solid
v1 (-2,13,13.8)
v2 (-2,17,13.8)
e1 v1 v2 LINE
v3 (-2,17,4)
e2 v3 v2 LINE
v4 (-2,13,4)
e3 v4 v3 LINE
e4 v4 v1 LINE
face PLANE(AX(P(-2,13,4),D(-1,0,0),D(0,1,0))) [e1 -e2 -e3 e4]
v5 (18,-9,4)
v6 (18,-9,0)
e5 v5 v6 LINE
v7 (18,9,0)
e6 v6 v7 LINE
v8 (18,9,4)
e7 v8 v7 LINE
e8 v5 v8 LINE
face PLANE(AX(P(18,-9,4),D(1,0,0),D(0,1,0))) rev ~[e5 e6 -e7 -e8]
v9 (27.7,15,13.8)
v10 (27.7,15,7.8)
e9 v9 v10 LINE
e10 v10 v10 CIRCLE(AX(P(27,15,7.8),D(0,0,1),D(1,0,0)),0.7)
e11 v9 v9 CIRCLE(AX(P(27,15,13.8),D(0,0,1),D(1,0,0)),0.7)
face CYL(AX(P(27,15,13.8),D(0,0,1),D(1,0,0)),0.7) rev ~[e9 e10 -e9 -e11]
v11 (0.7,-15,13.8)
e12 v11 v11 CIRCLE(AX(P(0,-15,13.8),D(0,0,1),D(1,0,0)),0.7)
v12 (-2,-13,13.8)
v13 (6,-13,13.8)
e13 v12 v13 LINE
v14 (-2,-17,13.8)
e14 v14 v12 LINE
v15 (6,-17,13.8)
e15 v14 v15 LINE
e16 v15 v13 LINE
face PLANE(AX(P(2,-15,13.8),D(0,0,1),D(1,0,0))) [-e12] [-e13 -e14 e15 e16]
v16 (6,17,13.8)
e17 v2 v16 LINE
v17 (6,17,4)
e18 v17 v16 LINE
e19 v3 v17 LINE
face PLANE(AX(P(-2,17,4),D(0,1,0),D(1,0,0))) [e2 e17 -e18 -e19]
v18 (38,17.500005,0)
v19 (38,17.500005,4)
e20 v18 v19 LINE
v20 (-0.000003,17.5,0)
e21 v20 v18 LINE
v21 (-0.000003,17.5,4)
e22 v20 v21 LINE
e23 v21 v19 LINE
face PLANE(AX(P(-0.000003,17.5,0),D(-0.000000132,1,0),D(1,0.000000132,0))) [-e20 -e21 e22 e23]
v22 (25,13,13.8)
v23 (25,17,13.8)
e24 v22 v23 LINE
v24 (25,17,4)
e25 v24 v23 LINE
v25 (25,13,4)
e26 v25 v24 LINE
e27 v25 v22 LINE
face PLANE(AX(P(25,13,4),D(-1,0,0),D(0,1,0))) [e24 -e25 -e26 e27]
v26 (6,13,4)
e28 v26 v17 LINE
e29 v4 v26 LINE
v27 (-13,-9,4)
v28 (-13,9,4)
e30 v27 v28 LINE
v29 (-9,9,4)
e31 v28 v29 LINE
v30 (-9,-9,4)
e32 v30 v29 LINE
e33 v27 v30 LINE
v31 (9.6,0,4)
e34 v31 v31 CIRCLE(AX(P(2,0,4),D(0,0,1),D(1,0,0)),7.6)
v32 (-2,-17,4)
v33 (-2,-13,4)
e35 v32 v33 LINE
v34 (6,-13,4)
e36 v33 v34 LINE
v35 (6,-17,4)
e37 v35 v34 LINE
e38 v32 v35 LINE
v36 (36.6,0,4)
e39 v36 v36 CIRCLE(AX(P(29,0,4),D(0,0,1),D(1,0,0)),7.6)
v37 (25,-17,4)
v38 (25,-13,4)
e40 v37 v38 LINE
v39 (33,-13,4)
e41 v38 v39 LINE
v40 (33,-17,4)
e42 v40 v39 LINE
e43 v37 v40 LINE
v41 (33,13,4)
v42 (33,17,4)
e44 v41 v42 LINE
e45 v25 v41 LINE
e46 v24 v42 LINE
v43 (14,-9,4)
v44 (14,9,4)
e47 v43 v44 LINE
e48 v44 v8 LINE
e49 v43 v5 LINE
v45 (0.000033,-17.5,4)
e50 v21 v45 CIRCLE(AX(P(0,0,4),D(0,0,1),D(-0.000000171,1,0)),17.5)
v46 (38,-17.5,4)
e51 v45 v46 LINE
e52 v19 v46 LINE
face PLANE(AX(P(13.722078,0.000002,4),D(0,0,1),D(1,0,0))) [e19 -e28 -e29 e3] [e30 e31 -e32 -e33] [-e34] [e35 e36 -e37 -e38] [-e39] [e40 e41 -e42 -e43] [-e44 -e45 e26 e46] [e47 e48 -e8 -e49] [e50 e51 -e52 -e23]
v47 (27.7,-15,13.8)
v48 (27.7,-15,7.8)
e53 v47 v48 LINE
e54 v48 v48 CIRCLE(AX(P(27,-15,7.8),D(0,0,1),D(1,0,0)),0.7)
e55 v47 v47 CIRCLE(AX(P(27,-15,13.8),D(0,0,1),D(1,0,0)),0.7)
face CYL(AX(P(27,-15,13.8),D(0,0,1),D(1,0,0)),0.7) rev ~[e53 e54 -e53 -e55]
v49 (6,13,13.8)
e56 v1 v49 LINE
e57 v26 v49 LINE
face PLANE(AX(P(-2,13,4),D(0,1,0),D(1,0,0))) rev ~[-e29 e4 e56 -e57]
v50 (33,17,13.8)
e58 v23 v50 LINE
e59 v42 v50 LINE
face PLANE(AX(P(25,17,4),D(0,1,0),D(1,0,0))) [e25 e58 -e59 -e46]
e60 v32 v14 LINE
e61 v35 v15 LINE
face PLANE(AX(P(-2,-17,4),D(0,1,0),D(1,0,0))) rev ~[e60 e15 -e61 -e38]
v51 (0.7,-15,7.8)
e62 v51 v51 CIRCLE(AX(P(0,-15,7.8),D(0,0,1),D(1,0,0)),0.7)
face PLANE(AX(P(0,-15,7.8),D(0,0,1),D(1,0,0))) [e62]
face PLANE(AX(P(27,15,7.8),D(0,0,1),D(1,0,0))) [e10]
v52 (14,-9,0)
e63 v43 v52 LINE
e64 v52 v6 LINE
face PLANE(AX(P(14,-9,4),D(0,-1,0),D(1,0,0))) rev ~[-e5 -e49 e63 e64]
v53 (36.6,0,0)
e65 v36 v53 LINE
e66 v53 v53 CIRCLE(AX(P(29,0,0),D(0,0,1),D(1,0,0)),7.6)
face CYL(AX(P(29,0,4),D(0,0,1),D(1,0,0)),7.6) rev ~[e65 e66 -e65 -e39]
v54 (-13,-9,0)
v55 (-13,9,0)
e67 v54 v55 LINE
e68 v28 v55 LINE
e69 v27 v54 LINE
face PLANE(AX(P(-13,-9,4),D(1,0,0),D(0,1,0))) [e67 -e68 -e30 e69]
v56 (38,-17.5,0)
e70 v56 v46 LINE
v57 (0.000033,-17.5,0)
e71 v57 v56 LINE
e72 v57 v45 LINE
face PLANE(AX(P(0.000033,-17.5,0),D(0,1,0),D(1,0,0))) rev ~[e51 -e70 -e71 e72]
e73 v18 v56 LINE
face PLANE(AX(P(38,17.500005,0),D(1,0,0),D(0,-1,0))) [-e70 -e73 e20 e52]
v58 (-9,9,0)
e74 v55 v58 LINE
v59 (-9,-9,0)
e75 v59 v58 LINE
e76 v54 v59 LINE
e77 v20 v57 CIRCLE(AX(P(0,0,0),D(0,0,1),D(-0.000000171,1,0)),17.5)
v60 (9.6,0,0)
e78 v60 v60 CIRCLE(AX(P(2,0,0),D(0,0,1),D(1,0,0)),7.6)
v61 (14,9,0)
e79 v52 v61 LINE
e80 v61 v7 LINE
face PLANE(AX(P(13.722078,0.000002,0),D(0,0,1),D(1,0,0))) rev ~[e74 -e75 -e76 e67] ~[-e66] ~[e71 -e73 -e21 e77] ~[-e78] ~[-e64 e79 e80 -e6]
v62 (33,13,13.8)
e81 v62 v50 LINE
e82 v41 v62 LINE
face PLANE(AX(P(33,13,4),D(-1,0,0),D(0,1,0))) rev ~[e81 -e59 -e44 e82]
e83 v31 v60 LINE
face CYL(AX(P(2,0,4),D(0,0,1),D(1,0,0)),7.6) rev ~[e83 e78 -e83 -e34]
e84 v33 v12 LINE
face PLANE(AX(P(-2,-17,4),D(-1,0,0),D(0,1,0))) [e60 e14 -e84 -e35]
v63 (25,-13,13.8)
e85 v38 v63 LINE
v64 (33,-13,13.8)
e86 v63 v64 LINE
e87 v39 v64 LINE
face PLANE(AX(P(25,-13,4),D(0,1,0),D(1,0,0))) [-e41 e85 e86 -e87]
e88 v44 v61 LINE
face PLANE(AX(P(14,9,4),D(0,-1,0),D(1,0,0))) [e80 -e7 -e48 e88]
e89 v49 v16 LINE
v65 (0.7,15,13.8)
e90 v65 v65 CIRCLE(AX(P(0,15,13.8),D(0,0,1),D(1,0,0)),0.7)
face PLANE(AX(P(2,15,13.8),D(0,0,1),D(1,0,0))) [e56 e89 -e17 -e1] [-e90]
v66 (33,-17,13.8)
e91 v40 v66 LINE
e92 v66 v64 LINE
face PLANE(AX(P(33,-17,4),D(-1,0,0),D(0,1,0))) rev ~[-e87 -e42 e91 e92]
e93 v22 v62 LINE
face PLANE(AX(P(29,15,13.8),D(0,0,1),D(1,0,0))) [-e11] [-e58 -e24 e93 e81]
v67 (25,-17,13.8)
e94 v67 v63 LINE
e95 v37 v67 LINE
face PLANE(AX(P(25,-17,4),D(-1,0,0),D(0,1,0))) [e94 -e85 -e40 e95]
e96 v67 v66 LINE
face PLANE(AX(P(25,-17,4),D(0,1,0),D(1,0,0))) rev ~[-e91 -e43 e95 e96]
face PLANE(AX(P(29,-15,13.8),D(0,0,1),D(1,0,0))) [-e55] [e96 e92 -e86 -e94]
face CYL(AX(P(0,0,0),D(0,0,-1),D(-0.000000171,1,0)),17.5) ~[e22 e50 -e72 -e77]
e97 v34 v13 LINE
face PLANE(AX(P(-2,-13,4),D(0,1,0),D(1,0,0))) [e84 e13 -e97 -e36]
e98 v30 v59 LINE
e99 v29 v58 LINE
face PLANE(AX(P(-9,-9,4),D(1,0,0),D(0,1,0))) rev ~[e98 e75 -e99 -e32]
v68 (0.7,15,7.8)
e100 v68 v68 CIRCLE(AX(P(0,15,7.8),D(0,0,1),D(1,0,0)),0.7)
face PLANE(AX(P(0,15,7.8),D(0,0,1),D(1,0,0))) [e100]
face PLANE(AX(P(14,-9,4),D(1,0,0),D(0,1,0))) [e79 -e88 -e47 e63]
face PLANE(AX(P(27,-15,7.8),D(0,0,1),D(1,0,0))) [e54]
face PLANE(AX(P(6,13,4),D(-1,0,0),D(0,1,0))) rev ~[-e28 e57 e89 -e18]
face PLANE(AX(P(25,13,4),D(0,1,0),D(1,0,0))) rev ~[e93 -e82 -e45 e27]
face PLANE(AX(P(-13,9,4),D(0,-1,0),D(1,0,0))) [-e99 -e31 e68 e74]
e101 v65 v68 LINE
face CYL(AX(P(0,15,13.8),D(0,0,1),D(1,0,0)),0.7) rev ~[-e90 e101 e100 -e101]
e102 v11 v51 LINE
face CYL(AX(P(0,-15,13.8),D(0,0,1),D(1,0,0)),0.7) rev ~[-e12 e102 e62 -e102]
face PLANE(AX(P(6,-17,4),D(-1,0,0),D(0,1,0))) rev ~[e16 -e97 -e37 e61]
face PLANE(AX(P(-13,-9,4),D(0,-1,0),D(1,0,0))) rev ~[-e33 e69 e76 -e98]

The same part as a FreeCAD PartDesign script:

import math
import FreeCAD as App
import Part
import Sketcher


def add_polygon(sketch, points):
    """Adds a closed chain of lines whose ends are joined by coincident constraints."""
    first, n = sketch.GeometryCount, len(points)
    for a, b in zip(points, points[1:] + points[:1]):
        sketch.addGeometry(Part.LineSegment(App.Vector(*a, 0), App.Vector(*b, 0)), False)
    for i in range(n):
        sketch.addConstraint(Sketcher.Constraint("Coincident", first + i, 2, first + (i + 1) % n, 1))

doc = App.newDocument("Part")
body = doc.addObject("PartDesign::Body", "Body")

# Sketch on XY plane
sketch1 = body.newObject("Sketcher::SketchObject", "Sketch")
sketch1.AttachmentSupport = (doc.getObject("XY_Plane"), [""])
sketch1.MapMode = "FlatFace"
sketch1.addGeometry(Part.ArcOfCircle(Part.Circle(App.Vector(0, 0, 0), App.Vector(0, 0, 1), 17.5), math.radians(90.00001), math.radians(270.000108)), False)
sketch1.addGeometry(Part.LineSegment(App.Vector(0.000033, -17.5, 0), App.Vector(38, -17.5, 0)), False)
sketch1.addGeometry(Part.LineSegment(App.Vector(38, -17.5, 0), App.Vector(38, 17.500005, 0)), False)
sketch1.addGeometry(Part.LineSegment(App.Vector(38, 17.500005, 0), App.Vector(-0.000003, 17.5, 0)), False)
sketch1.addConstraint(Sketcher.Constraint("Coincident", 0, 2, 1, 1))
sketch1.addConstraint(Sketcher.Constraint("Coincident", 1, 2, 2, 1))
sketch1.addConstraint(Sketcher.Constraint("Coincident", 2, 2, 3, 1))
sketch1.addConstraint(Sketcher.Constraint("Coincident", 3, 2, 0, 1))
sketch1.addConstraint(Sketcher.Constraint("Horizontal", 1))
sketch1.addConstraint(Sketcher.Constraint("Vertical", 2))
sketch1.addConstraint(Sketcher.Constraint("Coincident", 0, 3, -1, 1))
sketch1.addConstraint(Sketcher.Constraint("Radius", 0, 17.5))
sketch1.addConstraint(Sketcher.Constraint("DistanceX", -1, 1, 1, 2, 38.0))
sketch1.addConstraint(Sketcher.Constraint("DistanceX", 1, 1, 1, 2, 37.999967))
sketch1.addConstraint(Sketcher.Constraint("DistanceY", 2, 1, 2, 2, 35.000005))
sketch1.addConstraint(Sketcher.Constraint("Distance", 3, 38.000003))
pad1 = body.newObject("PartDesign::Pad", "Pad")
pad1.Profile = sketch1
pad1.Length = 4

# Sketch on XY plane
sketch2 = body.newObject("Sketcher::SketchObject", "Sketch001")
sketch2.AttachmentSupport = (doc.getObject("XY_Plane"), [""])
sketch2.MapMode = "FlatFace"
sketch2.AttachmentOffset = App.Placement(App.Vector(0, 0, 4), App.Rotation())
add_polygon(sketch2, [(-2, 17), (-2, 13), (6, 13), (6, 17)])  # lines 0-3
add_polygon(sketch2, [(-2, -13), (-2, -17), (6, -17), (6, -13)])  # lines 4-7
add_polygon(sketch2, [(25, 17), (25, 13), (33, 13), (33, 17)])  # lines 8-11
add_polygon(sketch2, [(25, -13), (25, -17), (33, -17), (33, -13)])  # lines 12-15
sketch2.addConstraint(Sketcher.Constraint("Vertical", 0))
sketch2.addConstraint(Sketcher.Constraint("Horizontal", 1))
sketch2.addConstraint(Sketcher.Constraint("Vertical", 2))
sketch2.addConstraint(Sketcher.Constraint("Horizontal", 3))
sketch2.addConstraint(Sketcher.Constraint("Vertical", 4))
sketch2.addConstraint(Sketcher.Constraint("Horizontal", 5))
sketch2.addConstraint(Sketcher.Constraint("Vertical", 6))
sketch2.addConstraint(Sketcher.Constraint("Horizontal", 7))
sketch2.addConstraint(Sketcher.Constraint("Vertical", 8))
sketch2.addConstraint(Sketcher.Constraint("Horizontal", 9))
sketch2.addConstraint(Sketcher.Constraint("Vertical", 10))
sketch2.addConstraint(Sketcher.Constraint("Horizontal", 11))
sketch2.addConstraint(Sketcher.Constraint("Vertical", 12))
sketch2.addConstraint(Sketcher.Constraint("Horizontal", 13))
sketch2.addConstraint(Sketcher.Constraint("Vertical", 14))
sketch2.addConstraint(Sketcher.Constraint("Horizontal", 15))
sketch2.addConstraint(Sketcher.Constraint("Symmetric", 3, 2, 4, 2, -1))
sketch2.addConstraint(Sketcher.Constraint("Symmetric", 1, 2, 6, 2, -1))
sketch2.addConstraint(Sketcher.Constraint("Symmetric", 11, 2, 12, 2, -1))
sketch2.addConstraint(Sketcher.Constraint("Symmetric", 9, 2, 14, 2, -1))
sketch2.addConstraint(Sketcher.Constraint("Horizontal", 1, 2, 8, 2))
sketch2.addConstraint(Sketcher.Constraint("Horizontal", 3, 2, 10, 2))
sketch2.addConstraint(Sketcher.Constraint("Equal", 7, 9))
sketch2.addConstraint(Sketcher.Constraint("DistanceX", 1, 1, 1, 2, 8.0))
sketch2.addConstraint(Sketcher.Constraint("DistanceY", 0, 2, 0, 1, 4.0))
sketch2.addConstraint(Sketcher.Constraint("DistanceX", 0, 2, -1, 1, 2.0))
sketch2.addConstraint(Sketcher.Constraint("DistanceY", -1, 1, 0, 2, 13.0))
sketch2.addConstraint(Sketcher.Constraint("DistanceX", -1, 1, 8, 2, 25.0))
pad2 = body.newObject("PartDesign::Pad", "Pad001")
pad2.Profile = sketch2
pad2.Length = 9.8

# Sketch on XY plane
sketch3 = body.newObject("Sketcher::SketchObject", "Sketch002")
sketch3.AttachmentSupport = (doc.getObject("XY_Plane"), [""])
sketch3.MapMode = "FlatFace"
sketch3.AttachmentOffset = App.Placement(App.Vector(0, 0, 4), App.Rotation())
sketch3.addGeometry(Part.Circle(App.Vector(2, 0, 0), App.Vector(0, 0, 1), 8), False)
sketch3.addGeometry(Part.Circle(App.Vector(29, 0, 0), App.Vector(0, 0, 1), 8), False)
sketch3.addConstraint(Sketcher.Constraint("Equal", 0, 1))
sketch3.addConstraint(Sketcher.Constraint("PointOnObject", 0, 3, -1))
sketch3.addConstraint(Sketcher.Constraint("PointOnObject", 1, 3, -1))
sketch3.addConstraint(Sketcher.Constraint("Diameter", 0, 15.2))
sketch3.addConstraint(Sketcher.Constraint("DistanceX", -1, 1, 0, 3, 2.0))
sketch3.addConstraint(Sketcher.Constraint("DistanceX", -1, 1, 1, 3, 29.0))
pocket1 = body.newObject("PartDesign::Pocket", "Pocket")
pocket1.Profile = sketch3
pocket1.Length = 5

# Sketch on XY plane
sketch4 = body.newObject("Sketcher::SketchObject", "Sketch003")
sketch4.AttachmentSupport = (doc.getObject("XY_Plane"), [""])
sketch4.MapMode = "FlatFace"
sketch4.AttachmentOffset = App.Placement(App.Vector(0, 0, 13.8), App.Rotation())
sketch4.addGeometry(Part.Circle(App.Vector(0, 15, 0), App.Vector(0, 0, 1), 0.7), False)
sketch4.addGeometry(Part.Circle(App.Vector(27, 15, 0), App.Vector(0, 0, 1), 0.7), False)
sketch4.addGeometry(Part.Circle(App.Vector(27, -15, 0), App.Vector(0, 0, 1), 0.7), False)
sketch4.addGeometry(Part.Circle(App.Vector(0, -15, 0), App.Vector(0, 0, 1), 0.7), False)
sketch4.addConstraint(Sketcher.Constraint("Equal", 0, 1))
sketch4.addConstraint(Sketcher.Constraint("Equal", 1, 2))
sketch4.addConstraint(Sketcher.Constraint("Equal", 2, 3))
sketch4.addConstraint(Sketcher.Constraint("Symmetric", 0, 3, 3, 3, -1, 1))
sketch4.addConstraint(Sketcher.Constraint("Symmetric", 1, 3, 2, 3, -1))
sketch4.addConstraint(Sketcher.Constraint("PointOnObject", 0, 3, -2))
sketch4.addConstraint(Sketcher.Constraint("Horizontal", 0, 3, 1, 3))
sketch4.addConstraint(Sketcher.Constraint("Diameter", 0, 1.4))
sketch4.addConstraint(Sketcher.Constraint("DistanceY", -1, 1, 0, 3, 15.0))
sketch4.addConstraint(Sketcher.Constraint("DistanceX", -1, 1, 1, 3, 27.0))
pocket2 = body.newObject("PartDesign::Pocket", "Pocket001")
pocket2.Profile = sketch4
pocket2.Length = 6

# Sketch on XY plane
sketch5 = body.newObject("Sketcher::SketchObject", "Sketch004")
sketch5.AttachmentSupport = (doc.getObject("XY_Plane"), [""])
sketch5.MapMode = "FlatFace"
sketch5.AttachmentOffset = App.Placement(App.Vector(0, 0, 4), App.Rotation())
add_polygon(sketch5, [(-13, 9), (-13, -9), (-9, -9), (-9, 9)])  # lines 0-3
add_polygon(sketch5, [(14, 9), (14, -9), (18, -9), (18, 9)])  # lines 4-7
sketch5.addConstraint(Sketcher.Constraint("Vertical", 0))
sketch5.addConstraint(Sketcher.Constraint("Horizontal", 1))
sketch5.addConstraint(Sketcher.Constraint("Vertical", 2))
sketch5.addConstraint(Sketcher.Constraint("Horizontal", 3))
sketch5.addConstraint(Sketcher.Constraint("Vertical", 4))
sketch5.addConstraint(Sketcher.Constraint("Horizontal", 5))
sketch5.addConstraint(Sketcher.Constraint("Vertical", 6))
sketch5.addConstraint(Sketcher.Constraint("Horizontal", 7))
sketch5.addConstraint(Sketcher.Constraint("Horizontal", 1, 2, 4, 2))
sketch5.addConstraint(Sketcher.Constraint("Horizontal", 3, 2, 6, 2))
sketch5.addConstraint(Sketcher.Constraint("Equal", 3, 5))
sketch5.addConstraint(Sketcher.Constraint("DistanceX", 1, 1, 1, 2, 4.0))
sketch5.addConstraint(Sketcher.Constraint("DistanceY", 0, 2, 0, 1, 18.0))
sketch5.addConstraint(Sketcher.Constraint("DistanceX", 0, 2, -1, 1, 13.0))
sketch5.addConstraint(Sketcher.Constraint("DistanceY", 0, 2, -1, 1, 9.0))
sketch5.addConstraint(Sketcher.Constraint("DistanceX", -1, 1, 4, 2, 14.0))
pocket3 = body.newObject("PartDesign::Pocket", "Pocket002")
pocket3.Profile = sketch5
pocket3.Length = 5

doc.recompute()
